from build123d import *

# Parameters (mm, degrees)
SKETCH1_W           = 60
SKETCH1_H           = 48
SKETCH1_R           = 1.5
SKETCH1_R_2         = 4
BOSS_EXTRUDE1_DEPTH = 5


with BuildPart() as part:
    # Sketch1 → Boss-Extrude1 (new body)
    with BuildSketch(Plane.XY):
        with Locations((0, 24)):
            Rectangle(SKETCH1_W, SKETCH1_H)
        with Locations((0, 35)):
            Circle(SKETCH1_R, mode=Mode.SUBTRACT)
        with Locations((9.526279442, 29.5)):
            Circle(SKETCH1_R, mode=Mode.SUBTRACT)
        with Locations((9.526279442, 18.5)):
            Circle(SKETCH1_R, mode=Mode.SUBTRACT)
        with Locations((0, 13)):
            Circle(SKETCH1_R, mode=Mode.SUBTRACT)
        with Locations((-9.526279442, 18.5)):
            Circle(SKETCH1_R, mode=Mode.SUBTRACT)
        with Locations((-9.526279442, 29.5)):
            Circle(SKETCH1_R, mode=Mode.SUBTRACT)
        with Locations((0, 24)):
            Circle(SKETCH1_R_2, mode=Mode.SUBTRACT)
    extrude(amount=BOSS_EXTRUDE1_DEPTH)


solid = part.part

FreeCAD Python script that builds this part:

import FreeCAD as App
import Part
import Sketcher
from FreeCAD import Vector

doc = App.newDocument("Part")
body = doc.addObject("PartDesign::Body", "Body")

sketch1 = body.newObject("Sketcher::SketchObject", "Sketch")
sketch1.AttachmentSupport = (doc.getObject("XY_Plane"), [""])
sketch1.MapMode = "FlatFace"
sketch1.addGeometry(Part.LineSegment(Vector(-30, 48, 0), Vector(-30, 0, 0)), False)
sketch1.addGeometry(Part.LineSegment(Vector(-30, 0, 0), Vector(30, 0, 0)), False)
sketch1.addGeometry(Part.LineSegment(Vector(30, 0, 0), Vector(30, 48, 0)), False)
sketch1.addGeometry(Part.LineSegment(Vector(30, 48, 0), Vector(-30, 48, 0)), False)
sketch1.addGeometry(Part.Circle(Vector(-9.526279, 18.5, 0), Vector(0, 0, 1), 1.5), False)
sketch1.addGeometry(Part.Circle(Vector(0, 13, 0), Vector(0, 0, 1), 1.5), False)
sketch1.addGeometry(Part.Circle(Vector(9.526279, 18.5, 0), Vector(0, 0, 1), 1.5), False)
sketch1.addGeometry(Part.Circle(Vector(-9.526279, 29.5, 0), Vector(0, 0, 1), 1.5), False)
sketch1.addGeometry(Part.Circle(Vector(0, 24, 0), Vector(0, 0, 1), 4), False)
sketch1.addGeometry(Part.Circle(Vector(9.526279, 29.5, 0), Vector(0, 0, 1), 1.5), False)
sketch1.addGeometry(Part.Circle(Vector(0, 35, 0), Vector(0, 0, 1), 1.5), False)
sketch1.addConstraint(Sketcher.Constraint("Coincident", 0, 2, 1, 1))
sketch1.addConstraint(Sketcher.Constraint("Coincident", 1, 2, 2, 1))
sketch1.addConstraint(Sketcher.Constraint("Coincident", 2, 2, 3, 1))
sketch1.addConstraint(Sketcher.Constraint("Coincident", 3, 2, 0, 1))
sketch1.addConstraint(Sketcher.Constraint("Vertical", 0))
sketch1.addConstraint(Sketcher.Constraint("Horizontal", 1))
sketch1.addConstraint(Sketcher.Constraint("Vertical", 2))
sketch1.addConstraint(Sketcher.Constraint("Horizontal", 3))
sketch1.addConstraint(Sketcher.Constraint("Equal", 4, 5))
sketch1.addConstraint(Sketcher.Constraint("Equal", 5, 6))
sketch1.addConstraint(Sketcher.Constraint("Equal", 6, 7))
sketch1.addConstraint(Sketcher.Constraint("Equal", 7, 9))
sketch1.addConstraint(Sketcher.Constraint("Equal", 9, 10))
sketch1.addConstraint(Sketcher.Constraint("Symmetric", 0, 2, 1, 2, -1, 1))
sketch1.addConstraint(Sketcher.Constraint("Symmetric", 4, 3, 6, 3, -2))
sketch1.addConstraint(Sketcher.Constraint("Symmetric", 7, 3, 9, 3, -2))
sketch1.addConstraint(Sketcher.Constraint("PointOnObject", 5, 3, -2))
sketch1.addConstraint(Sketcher.Constraint("PointOnObject", 8, 3, -2))
sketch1.addConstraint(Sketcher.Constraint("PointOnObject", 10, 3, -2))
sketch1.addConstraint(Sketcher.Constraint("Vertical", 4, 3, 7, 3))
sketch1.addConstraint(Sketcher.Constraint("Diameter", 4, 3.0))
sketch1.addConstraint(Sketcher.Constraint("Diameter", 8, 8.0))
sketch1.addConstraint(Sketcher.Constraint("DistanceX", 1, 1, 1, 2, 60.0))
sketch1.addConstraint(Sketcher.Constraint("DistanceY", 0, 2, 0, 1, 48.0))
sketch1.addConstraint(Sketcher.Constraint("DistanceY", -1, 1, 5, 3, 13.0))
sketch1.addConstraint(Sketcher.Constraint("DistanceY", -1, 1, 8, 3, 24.0))
sketch1.addConstraint(Sketcher.Constraint("DistanceY", -1, 1, 10, 3, 35.0))
sketch1.addConstraint(Sketcher.Constraint("DistanceY", 4, 3, 7, 3, 11.0))
sketch1.addConstraint(Sketcher.Constraint("DistanceY", -1, 1, 4, 3, 18.5))
sketch1.addConstraint(Sketcher.Constraint("DistanceX", 4, 3, -1, 1, 9.526279))
pad1 = body.newObject("PartDesign::Pad", "Pad")
pad1.Profile = sketch1
pad1.Length = 5

doc.recompute()
